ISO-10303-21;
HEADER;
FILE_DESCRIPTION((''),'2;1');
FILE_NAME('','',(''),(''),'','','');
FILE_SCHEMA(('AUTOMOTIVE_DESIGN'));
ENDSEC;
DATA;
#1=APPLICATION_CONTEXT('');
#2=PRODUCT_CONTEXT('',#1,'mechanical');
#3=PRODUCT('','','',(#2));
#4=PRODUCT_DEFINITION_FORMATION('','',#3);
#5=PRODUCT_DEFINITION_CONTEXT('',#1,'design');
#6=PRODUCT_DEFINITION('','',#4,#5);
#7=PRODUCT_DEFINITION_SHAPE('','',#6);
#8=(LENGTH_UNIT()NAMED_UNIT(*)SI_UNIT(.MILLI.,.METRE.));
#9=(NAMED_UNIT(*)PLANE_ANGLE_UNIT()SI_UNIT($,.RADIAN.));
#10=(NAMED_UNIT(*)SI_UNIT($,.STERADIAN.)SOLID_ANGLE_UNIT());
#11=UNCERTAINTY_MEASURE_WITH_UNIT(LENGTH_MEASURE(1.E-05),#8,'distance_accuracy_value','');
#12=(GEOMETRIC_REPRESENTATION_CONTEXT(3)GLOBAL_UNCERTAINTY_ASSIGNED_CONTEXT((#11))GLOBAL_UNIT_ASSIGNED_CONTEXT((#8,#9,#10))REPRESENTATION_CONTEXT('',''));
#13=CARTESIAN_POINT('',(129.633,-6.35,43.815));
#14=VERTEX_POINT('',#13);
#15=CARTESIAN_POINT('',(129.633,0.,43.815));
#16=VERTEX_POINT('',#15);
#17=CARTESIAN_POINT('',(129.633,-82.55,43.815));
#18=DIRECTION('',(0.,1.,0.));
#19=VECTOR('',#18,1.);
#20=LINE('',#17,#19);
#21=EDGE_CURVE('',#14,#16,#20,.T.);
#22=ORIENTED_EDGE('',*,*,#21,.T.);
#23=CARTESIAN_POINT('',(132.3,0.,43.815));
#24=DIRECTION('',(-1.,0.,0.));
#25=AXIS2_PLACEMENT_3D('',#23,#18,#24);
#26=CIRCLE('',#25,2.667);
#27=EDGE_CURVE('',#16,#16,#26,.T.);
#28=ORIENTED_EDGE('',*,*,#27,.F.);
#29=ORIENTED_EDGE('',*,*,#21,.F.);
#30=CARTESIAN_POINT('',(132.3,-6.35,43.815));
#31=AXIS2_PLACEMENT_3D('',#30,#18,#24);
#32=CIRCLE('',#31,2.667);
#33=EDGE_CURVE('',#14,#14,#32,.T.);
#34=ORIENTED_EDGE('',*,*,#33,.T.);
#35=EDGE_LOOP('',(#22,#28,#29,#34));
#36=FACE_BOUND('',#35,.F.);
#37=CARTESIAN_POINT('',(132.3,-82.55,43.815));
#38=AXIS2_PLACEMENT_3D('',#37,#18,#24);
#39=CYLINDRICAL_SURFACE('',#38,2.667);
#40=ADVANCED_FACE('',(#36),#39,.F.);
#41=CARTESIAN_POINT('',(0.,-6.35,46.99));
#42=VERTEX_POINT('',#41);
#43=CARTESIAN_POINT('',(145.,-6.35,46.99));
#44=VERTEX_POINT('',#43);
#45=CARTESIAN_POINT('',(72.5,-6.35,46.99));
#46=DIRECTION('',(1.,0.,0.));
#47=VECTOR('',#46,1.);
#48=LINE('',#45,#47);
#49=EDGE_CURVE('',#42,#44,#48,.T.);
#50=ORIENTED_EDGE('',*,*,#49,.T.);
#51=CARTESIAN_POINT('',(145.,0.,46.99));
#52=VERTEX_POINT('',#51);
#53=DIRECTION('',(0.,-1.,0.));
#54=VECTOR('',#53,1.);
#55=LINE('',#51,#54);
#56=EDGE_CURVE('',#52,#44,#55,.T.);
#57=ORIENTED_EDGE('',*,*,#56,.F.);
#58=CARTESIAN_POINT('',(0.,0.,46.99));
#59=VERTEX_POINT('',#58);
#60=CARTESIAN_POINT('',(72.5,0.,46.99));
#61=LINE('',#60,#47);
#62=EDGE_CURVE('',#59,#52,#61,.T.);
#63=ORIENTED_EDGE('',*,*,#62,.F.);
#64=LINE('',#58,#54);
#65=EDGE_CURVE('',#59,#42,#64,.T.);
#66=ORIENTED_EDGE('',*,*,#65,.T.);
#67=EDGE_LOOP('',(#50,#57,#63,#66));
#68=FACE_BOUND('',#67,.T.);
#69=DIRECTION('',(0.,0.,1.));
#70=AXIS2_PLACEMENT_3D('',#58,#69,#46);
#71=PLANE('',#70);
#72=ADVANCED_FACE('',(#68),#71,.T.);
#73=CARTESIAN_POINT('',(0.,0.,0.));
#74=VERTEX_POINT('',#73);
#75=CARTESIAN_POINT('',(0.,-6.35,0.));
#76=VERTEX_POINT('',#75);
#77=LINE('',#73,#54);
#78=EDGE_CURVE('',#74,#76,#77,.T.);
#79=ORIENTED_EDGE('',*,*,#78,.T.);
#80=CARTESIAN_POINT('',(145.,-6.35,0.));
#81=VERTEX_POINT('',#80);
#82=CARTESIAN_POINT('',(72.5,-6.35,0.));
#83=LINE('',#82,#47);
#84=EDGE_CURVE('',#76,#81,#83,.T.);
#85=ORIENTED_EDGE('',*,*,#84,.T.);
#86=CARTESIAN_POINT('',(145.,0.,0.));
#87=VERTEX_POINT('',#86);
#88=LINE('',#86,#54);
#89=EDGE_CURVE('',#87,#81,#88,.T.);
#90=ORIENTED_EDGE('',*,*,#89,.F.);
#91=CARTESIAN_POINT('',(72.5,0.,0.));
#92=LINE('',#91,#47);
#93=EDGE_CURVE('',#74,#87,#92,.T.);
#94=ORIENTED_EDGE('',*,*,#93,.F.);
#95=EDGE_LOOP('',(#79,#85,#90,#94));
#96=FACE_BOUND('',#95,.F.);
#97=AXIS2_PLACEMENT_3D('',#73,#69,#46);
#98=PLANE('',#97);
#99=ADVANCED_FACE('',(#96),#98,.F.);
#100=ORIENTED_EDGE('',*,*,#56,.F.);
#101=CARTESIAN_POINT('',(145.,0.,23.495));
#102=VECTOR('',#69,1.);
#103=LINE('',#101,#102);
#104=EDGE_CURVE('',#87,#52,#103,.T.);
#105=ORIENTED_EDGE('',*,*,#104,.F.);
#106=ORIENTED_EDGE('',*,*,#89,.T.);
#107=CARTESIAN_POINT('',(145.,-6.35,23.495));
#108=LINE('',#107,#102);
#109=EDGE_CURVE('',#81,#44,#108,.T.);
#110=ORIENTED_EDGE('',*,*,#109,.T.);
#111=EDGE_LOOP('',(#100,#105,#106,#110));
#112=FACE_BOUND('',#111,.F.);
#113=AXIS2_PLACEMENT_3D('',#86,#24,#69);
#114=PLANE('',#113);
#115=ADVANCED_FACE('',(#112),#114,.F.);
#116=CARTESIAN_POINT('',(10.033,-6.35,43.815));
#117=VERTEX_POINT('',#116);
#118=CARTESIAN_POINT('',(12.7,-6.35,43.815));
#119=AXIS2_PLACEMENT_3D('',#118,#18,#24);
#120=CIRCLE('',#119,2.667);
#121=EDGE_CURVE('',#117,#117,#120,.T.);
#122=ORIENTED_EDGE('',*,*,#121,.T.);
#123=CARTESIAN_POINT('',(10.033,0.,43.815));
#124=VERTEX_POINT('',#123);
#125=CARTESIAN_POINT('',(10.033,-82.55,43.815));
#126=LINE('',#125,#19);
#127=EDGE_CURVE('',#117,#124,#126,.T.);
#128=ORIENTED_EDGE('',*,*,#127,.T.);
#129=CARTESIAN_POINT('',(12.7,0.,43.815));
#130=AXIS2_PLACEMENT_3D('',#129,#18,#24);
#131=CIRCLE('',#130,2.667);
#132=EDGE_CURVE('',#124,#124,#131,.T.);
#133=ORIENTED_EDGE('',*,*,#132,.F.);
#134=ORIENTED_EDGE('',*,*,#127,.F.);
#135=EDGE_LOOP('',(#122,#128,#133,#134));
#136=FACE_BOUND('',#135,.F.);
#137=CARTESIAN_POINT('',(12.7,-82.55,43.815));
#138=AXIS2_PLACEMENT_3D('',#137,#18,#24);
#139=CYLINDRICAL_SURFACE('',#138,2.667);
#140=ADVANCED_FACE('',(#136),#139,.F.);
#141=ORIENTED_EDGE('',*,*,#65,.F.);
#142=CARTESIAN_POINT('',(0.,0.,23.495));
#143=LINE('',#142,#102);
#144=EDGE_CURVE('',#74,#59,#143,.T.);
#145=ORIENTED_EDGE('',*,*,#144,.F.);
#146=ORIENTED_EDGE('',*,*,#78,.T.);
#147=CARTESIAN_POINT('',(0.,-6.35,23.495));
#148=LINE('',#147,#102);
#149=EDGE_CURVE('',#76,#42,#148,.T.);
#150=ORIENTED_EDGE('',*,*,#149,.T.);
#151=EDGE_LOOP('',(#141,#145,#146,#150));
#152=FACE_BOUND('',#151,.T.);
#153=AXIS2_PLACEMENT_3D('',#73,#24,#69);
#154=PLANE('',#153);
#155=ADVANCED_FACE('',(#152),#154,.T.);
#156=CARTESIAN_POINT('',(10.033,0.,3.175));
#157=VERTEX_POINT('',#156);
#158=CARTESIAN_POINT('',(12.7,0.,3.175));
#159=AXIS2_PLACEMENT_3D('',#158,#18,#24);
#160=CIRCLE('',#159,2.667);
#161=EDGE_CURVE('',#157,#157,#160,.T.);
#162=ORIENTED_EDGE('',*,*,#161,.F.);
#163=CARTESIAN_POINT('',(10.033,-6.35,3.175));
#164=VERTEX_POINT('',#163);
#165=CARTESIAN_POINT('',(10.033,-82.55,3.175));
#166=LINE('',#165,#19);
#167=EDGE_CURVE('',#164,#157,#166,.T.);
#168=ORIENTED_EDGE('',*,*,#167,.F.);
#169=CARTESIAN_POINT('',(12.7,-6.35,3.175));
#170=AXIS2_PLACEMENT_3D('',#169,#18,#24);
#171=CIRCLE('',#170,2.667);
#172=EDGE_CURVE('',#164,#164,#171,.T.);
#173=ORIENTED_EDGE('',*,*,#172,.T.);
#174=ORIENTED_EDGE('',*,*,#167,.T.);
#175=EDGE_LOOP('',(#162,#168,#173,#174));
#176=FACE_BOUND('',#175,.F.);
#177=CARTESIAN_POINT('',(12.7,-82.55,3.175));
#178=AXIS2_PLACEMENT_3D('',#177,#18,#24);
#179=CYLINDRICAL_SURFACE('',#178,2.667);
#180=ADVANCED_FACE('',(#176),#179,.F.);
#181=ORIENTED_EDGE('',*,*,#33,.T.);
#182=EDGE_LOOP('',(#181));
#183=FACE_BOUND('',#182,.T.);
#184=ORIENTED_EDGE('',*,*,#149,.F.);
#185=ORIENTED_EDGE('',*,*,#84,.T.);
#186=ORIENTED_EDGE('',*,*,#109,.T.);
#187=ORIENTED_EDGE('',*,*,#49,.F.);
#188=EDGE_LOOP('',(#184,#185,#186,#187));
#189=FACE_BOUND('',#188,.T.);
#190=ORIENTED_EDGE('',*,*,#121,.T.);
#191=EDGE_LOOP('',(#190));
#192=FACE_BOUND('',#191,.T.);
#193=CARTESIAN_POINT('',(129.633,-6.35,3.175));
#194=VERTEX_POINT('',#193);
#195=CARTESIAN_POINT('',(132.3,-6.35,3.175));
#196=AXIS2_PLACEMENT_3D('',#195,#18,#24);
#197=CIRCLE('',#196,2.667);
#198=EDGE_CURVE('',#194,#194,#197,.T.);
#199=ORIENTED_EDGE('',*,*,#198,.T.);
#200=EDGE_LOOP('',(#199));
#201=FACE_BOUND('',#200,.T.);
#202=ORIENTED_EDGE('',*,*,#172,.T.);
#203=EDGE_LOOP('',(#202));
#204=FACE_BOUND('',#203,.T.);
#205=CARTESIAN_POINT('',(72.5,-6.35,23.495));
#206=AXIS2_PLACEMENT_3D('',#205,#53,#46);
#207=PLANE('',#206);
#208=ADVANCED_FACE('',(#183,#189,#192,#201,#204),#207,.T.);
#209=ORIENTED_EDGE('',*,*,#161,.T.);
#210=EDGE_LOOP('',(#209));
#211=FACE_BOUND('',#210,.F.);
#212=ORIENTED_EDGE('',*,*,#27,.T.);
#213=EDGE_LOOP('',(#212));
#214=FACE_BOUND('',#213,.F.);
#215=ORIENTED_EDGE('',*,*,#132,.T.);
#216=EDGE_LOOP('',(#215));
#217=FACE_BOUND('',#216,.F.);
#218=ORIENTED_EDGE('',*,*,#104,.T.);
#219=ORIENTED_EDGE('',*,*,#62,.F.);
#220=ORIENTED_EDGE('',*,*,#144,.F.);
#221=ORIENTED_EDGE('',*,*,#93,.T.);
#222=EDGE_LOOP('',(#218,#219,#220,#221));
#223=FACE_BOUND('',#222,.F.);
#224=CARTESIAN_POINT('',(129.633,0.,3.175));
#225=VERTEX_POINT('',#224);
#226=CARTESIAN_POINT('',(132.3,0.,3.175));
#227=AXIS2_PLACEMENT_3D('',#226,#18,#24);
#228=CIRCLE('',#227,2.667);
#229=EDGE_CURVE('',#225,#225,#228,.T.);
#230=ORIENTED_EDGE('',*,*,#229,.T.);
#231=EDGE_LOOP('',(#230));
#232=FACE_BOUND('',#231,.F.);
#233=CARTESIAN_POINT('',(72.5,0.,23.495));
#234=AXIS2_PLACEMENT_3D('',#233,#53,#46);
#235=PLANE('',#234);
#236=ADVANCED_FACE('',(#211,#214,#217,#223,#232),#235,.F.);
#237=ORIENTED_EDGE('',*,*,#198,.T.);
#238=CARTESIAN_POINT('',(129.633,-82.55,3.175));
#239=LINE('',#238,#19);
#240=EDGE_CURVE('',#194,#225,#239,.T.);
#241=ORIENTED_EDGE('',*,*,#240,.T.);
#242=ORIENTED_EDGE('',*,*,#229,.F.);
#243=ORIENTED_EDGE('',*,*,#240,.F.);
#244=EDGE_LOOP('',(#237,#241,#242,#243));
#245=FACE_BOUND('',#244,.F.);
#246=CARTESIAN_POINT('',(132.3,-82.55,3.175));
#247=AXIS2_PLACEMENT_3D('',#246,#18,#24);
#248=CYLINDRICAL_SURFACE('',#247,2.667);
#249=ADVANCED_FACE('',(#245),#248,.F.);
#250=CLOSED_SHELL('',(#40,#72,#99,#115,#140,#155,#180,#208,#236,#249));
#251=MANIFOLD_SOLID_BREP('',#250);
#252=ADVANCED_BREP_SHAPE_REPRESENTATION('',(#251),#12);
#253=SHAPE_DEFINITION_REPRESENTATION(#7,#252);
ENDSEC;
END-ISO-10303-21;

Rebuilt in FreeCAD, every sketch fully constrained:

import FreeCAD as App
import Part
import Sketcher
Q = App.Units.Quantity

doc = App.newDocument("Part")
body = doc.addObject("PartDesign::Body", "Body")

sketch1 = body.newObject("Sketcher::SketchObject", "Sketch")
sketch1.AttachmentSupport = (doc.getObject("XZ_Plane"), [""])
sketch1.MapMode = "FlatFace"
sketch1.addGeometry(Part.LineSegment(App.Vector(0, 46.99, 0), App.Vector(0, 0, 0)), False)
sketch1.addGeometry(Part.LineSegment(App.Vector(0, 0, 0), App.Vector(145, 0, 0)), False)
sketch1.addGeometry(Part.LineSegment(App.Vector(145, 0, 0), App.Vector(145, 46.99, 0)), False)
sketch1.addGeometry(Part.LineSegment(App.Vector(145, 46.99, 0), App.Vector(0, 46.99, 0)), False)
sketch1.addConstraint(Sketcher.Constraint("Coincident", 0, 2, 1, 1))
sketch1.addConstraint(Sketcher.Constraint("Coincident", 1, 2, 2, 1))
sketch1.addConstraint(Sketcher.Constraint("Coincident", 2, 2, 3, 1))
sketch1.addConstraint(Sketcher.Constraint("Coincident", 3, 2, 0, 1))
sketch1.addConstraint(Sketcher.Constraint("Vertical", 0))
sketch1.addConstraint(Sketcher.Constraint("Horizontal", 1))
sketch1.addConstraint(Sketcher.Constraint("Vertical", 2))
sketch1.addConstraint(Sketcher.Constraint("Horizontal", 3))
sketch1.addConstraint(Sketcher.Constraint("Coincident", 0, 2, -1, 1))
sketch1.addConstraint(Sketcher.Constraint("DistanceY", 0, 2, 0, 1, Q("1.85 in")))
sketch1.addConstraint(Sketcher.Constraint("DistanceX", 1, 1, 1, 2, 145.0))
pad1 = body.newObject("PartDesign::Pad", "Pad")
pad1.Profile = sketch1
pad1.Length = Q("0.25 in")

sketch2 = body.newObject("Sketcher::SketchObject", "Sketch001")
sketch2.AttachmentSupport = (doc.getObject("XZ_Plane"), [""])
sketch2.MapMode = "FlatFace"
sketch2.AttachmentOffset = App.Placement(App.Vector(0, 0, 0.25 * 25.4), App.Rotation())
sketch2.addGeometry(Part.Circle(App.Vector(12.7, 43.815, 0), App.Vector(0, 0, 1), 2.667), False)
sketch2.addGeometry(Part.Circle(App.Vector(132.3, 43.815, 0), App.Vector(0, 0, 1), 2.667), False)
sketch2.addGeometry(Part.Circle(App.Vector(12.7, 3.175, 0), App.Vector(0, 0, 1), 2.667), False)
sketch2.addGeometry(Part.Circle(App.Vector(132.3, 3.175, 0), App.Vector(0, 0, 1), 2.667), False)
sketch2.addConstraint(Sketcher.Constraint("Equal", 0, 1))
sketch2.addConstraint(Sketcher.Constraint("Equal", 1, 2))
sketch2.addConstraint(Sketcher.Constraint("Equal", 2, 3))
sketch2.addConstraint(Sketcher.Constraint("Horizontal", 0, 3, 1, 3))
sketch2.addConstraint(Sketcher.Constraint("Horizontal", 2, 3, 3, 3))
sketch2.addConstraint(Sketcher.Constraint("Vertical", 0, 3, 2, 3))
sketch2.addConstraint(Sketcher.Constraint("Vertical", 1, 3, 3, 3))
sketch2.addConstraint(Sketcher.Constraint("Diameter", 0, Q("0.21 in")))
sketch2.addConstraint(Sketcher.Constraint("DistanceX", -1, 1, 0, 3, Q("0.5 in")))
sketch2.addConstraint(Sketcher.Constraint("DistanceY", 2, 3, 0, 3, Q("1.6 in")))
sketch2.addConstraint(Sketcher.Constraint("DistanceY", -1, 1, 0, 3, Q("1.725 in")))
sketch2.addConstraint(Sketcher.Constraint("DistanceX", -1, 1, 1, 3, 132.3))
doc.recompute()
hole = body.newObject("PartDesign::Hole", "Hole")
hole.Profile = sketch2
hole.ThreadType = "None"
hole.Diameter = Q("0.21 in")
hole.DepthType = "Dimension"
hole.Depth = Q("3 in")
hole.DrillPoint = "Flat"

doc.recompute()
